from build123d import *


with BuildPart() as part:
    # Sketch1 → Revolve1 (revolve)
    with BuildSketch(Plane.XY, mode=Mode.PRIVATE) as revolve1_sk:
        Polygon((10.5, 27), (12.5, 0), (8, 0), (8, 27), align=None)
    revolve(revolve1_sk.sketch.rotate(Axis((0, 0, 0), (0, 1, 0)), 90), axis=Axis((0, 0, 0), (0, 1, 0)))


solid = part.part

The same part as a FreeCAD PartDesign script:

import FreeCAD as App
import Part
import Sketcher
Q = App.Units.Quantity


def add_polygon(sketch, points):
    """Adds a closed chain of lines whose ends are joined by coincident constraints."""
    first, n = sketch.GeometryCount, len(points)
    for a, b in zip(points, points[1:] + points[:1]):
        sketch.addGeometry(Part.LineSegment(App.Vector(*a, 0), App.Vector(*b, 0)), False)
    for i in range(n):
        sketch.addConstraint(Sketcher.Constraint("Coincident", first + i, 2, first + (i + 1) % n, 1))

doc = App.newDocument("Part")
body = doc.addObject("PartDesign::Body", "Body")

# Sketch on XY plane
sketch1 = doc.addObject("Sketcher::SketchObject", "Sketch")
body.addObject(sketch1)
sketch1.AttachmentSupport = (doc.XY_Plane, [""])
sketch1.MapMode = "FlatFace"
add_polygon(sketch1, [(12.5, 0), (10.5, 27), (8, 27), (8, 0)])  # lines 0-3
sketch1.addConstraint([
    Sketcher.Constraint("Horizontal", 1),
    Sketcher.Constraint("Vertical", 2),
    Sketcher.Constraint("Horizontal", 3),
    Sketcher.Constraint("PointOnObject", 2, 2, -1),
    Sketcher.Constraint("DistanceY", 2, 2, 2, 1, Q("27 mm")),
    Sketcher.Constraint("DistanceX", 1, 2, 1, 1, Q("2.5 mm")),
    Sketcher.Constraint("DistanceX", 3, 1, 3, 2, Q("4.5 mm")),
    Sketcher.Constraint("DistanceX", -1, 1, 1, 2, Q("8 mm")),
])
revolution = doc.addObject("PartDesign::Revolution", "Revolution")
body.addObject(revolution)
revolution.Profile = sketch1
revolution.ReferenceAxis = (sketch1, ["V_Axis"])
revolution.Angle = 360

doc.recompute()
